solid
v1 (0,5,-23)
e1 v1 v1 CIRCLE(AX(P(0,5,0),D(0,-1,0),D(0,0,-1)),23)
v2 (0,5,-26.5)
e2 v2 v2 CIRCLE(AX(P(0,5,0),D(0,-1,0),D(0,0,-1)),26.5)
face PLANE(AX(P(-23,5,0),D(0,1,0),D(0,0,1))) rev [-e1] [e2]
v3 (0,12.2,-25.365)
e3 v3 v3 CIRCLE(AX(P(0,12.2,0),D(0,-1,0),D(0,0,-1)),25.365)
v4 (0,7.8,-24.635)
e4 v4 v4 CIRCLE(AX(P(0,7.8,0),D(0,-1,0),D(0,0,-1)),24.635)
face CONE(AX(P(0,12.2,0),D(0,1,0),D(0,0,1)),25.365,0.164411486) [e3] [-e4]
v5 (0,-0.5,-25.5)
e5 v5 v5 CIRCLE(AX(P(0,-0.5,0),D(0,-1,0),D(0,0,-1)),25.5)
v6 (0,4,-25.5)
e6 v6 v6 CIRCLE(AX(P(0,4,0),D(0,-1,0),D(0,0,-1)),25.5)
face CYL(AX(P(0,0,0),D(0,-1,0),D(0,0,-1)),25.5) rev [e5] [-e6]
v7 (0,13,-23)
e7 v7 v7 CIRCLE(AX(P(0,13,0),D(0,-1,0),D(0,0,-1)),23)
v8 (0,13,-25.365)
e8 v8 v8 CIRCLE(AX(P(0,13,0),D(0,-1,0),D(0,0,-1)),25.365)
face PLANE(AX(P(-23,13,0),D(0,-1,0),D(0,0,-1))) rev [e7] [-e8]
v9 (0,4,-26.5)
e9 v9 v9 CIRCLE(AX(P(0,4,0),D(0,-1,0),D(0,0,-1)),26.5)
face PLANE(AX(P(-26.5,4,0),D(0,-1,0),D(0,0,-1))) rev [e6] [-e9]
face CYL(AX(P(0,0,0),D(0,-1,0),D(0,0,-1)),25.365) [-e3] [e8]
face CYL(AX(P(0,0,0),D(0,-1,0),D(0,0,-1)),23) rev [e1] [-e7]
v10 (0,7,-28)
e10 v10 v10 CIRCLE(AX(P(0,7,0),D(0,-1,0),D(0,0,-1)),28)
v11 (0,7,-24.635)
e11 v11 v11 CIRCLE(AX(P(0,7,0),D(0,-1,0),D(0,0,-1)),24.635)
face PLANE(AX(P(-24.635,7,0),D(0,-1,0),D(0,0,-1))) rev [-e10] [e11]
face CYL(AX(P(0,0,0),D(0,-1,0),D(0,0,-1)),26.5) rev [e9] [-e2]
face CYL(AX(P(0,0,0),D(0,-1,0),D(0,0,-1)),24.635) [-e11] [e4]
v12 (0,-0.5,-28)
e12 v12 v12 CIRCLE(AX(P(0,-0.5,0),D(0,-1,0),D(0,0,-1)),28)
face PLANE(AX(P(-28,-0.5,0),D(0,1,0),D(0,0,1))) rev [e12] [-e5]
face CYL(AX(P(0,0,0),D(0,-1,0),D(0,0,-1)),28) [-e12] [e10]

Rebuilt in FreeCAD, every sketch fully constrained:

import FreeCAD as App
import Part
import Sketcher
Q = App.Units.Quantity

doc = App.newDocument("Part")
body = doc.addObject("PartDesign::Body", "Body")

sketch1 = body.newObject("Sketcher::SketchObject", "Sketch")
sketch1.AttachmentSupport = (doc.getObject("XY_Plane"), [""])
sketch1.MapMode = "FlatFace"
sketch1.addGeometry([
    Part.LineSegment(App.Vector(-23, 5, 0), App.Vector(-23, 13, 0)),
    Part.LineSegment(App.Vector(-23, 13, 0), App.Vector(-25.365, 13, 0)),
    Part.LineSegment(App.Vector(-25.365, 13, 0), App.Vector(-25.365, 12.2, 0)),
    Part.LineSegment(App.Vector(-25.365, 12.2, 0), App.Vector(-24.635, 7.8, 0)),
    Part.LineSegment(App.Vector(-24.635, 7.8, 0), App.Vector(-24.635, 7, 0)),
    Part.LineSegment(App.Vector(-24.635, 7, 0), App.Vector(-28, 7, 0)),
    Part.LineSegment(App.Vector(-28, 7, 0), App.Vector(-28, -0.5, 0)),
    Part.LineSegment(App.Vector(-28, -0.5, 0), App.Vector(-25.5, -0.5, 0)),
    Part.LineSegment(App.Vector(-25.5, -0.5, 0), App.Vector(-25.5, 4, 0)),
    Part.LineSegment(App.Vector(-25.5, 4, 0), App.Vector(-26.5, 4, 0)),
    Part.LineSegment(App.Vector(-26.5, 4, 0), App.Vector(-26.5, 5, 0)),
    Part.LineSegment(App.Vector(-26.5, 5, 0), App.Vector(-23, 5, 0)),
], False)
sketch1.addConstraint([
    Sketcher.Constraint("Coincident", 0, 2, 1, 1),
    Sketcher.Constraint("Coincident", 1, 2, 2, 1),
    Sketcher.Constraint("Coincident", 2, 2, 3, 1),
    Sketcher.Constraint("Coincident", 3, 2, 4, 1),
    Sketcher.Constraint("Coincident", 4, 2, 5, 1),
    Sketcher.Constraint("Coincident", 5, 2, 6, 1),
    Sketcher.Constraint("Coincident", 6, 2, 7, 1),
    Sketcher.Constraint("Coincident", 7, 2, 8, 1),
    Sketcher.Constraint("Coincident", 8, 2, 9, 1),
    Sketcher.Constraint("Coincident", 9, 2, 10, 1),
    Sketcher.Constraint("Coincident", 10, 2, 11, 1),
    Sketcher.Constraint("Coincident", 11, 2, 0, 1),
    Sketcher.Constraint("Vertical", 0),
    Sketcher.Constraint("Horizontal", 1),
    Sketcher.Constraint("Vertical", 2),
    Sketcher.Constraint("Vertical", 4),
    Sketcher.Constraint("Horizontal", 5),
    Sketcher.Constraint("Vertical", 6),
    Sketcher.Constraint("Horizontal", 7),
    Sketcher.Constraint("Vertical", 8),
    Sketcher.Constraint("Horizontal", 9),
    Sketcher.Constraint("Vertical", 10),
    Sketcher.Constraint("Horizontal", 11),
    Sketcher.Constraint("Equal", 2, 4),
    Sketcher.Constraint("Equal", 9, 10),
    Sketcher.Constraint("DistanceX", 9, 2, 9, 1, Q("1 mm")),
    Sketcher.Constraint("DistanceY", 0, 1, 0, 2, Q("8 mm")),
    Sketcher.Constraint("DistanceX", 7, 1, 7, 2, Q("2.5 mm")),
    Sketcher.Constraint("DistanceX", 11, 1, 11, 2, Q("3.5 mm")),
    Sketcher.Constraint("DistanceY", 2, 2, 2, 1, Q("0.8 mm")),
    Sketcher.Constraint("DistanceY", 6, 2, 6, 1, Q("7.5 mm")),
    Sketcher.Constraint("DistanceY", 8, 1, 8, 2, Q("4.5 mm")),
    Sketcher.Constraint("DistanceX", 0, 2, -1, 1, Q("23 mm")),
    Sketcher.Constraint("DistanceY", -1, 1, 0, 2, Q("13 mm")),
    Sketcher.Constraint("DistanceX", 1, 2, 1, 1, Q("2.365 mm")),
    Sketcher.Constraint("DistanceX", 5, 2, 5, 1, Q("3.365 mm")),
])
revolution = body.newObject("PartDesign::Revolution", "Revolution")
revolution.Profile = sketch1
revolution.ReferenceAxis = (sketch1, ["V_Axis"])
revolution.Angle = 360

doc.recompute()
